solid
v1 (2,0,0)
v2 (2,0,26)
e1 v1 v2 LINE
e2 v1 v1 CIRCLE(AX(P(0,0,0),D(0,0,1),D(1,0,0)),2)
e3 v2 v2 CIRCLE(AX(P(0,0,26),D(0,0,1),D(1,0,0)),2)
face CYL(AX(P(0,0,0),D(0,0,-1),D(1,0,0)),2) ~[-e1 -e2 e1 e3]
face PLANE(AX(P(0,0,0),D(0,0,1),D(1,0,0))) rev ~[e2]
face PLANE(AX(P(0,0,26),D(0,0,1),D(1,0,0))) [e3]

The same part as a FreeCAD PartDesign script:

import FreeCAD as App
import Part
import Sketcher
Q = App.Units.Quantity

doc = App.newDocument("Part")
body = doc.addObject("PartDesign::Body", "Body")

# Sketch on XY plane
sketch1 = doc.addObject("Sketcher::SketchObject", "Sketch")
body.addObject(sketch1)
sketch1.AttachmentSupport = (doc.XY_Plane, [""])
sketch1.MapMode = "FlatFace"
sketch1.addGeometry(Part.Circle(App.Vector(0, 0, 0), App.Vector(0, 0, 1), 2), False)
sketch1.addConstraint([
    Sketcher.Constraint("Coincident", 0, 3, -1, 1),
    Sketcher.Constraint("Diameter", 0, Q("4 mm")),
])
pad1 = doc.addObject("PartDesign::Pad", "Pad")
body.addObject(pad1)
pad1.Profile = sketch1
pad1.Length = 26

doc.recompute()
